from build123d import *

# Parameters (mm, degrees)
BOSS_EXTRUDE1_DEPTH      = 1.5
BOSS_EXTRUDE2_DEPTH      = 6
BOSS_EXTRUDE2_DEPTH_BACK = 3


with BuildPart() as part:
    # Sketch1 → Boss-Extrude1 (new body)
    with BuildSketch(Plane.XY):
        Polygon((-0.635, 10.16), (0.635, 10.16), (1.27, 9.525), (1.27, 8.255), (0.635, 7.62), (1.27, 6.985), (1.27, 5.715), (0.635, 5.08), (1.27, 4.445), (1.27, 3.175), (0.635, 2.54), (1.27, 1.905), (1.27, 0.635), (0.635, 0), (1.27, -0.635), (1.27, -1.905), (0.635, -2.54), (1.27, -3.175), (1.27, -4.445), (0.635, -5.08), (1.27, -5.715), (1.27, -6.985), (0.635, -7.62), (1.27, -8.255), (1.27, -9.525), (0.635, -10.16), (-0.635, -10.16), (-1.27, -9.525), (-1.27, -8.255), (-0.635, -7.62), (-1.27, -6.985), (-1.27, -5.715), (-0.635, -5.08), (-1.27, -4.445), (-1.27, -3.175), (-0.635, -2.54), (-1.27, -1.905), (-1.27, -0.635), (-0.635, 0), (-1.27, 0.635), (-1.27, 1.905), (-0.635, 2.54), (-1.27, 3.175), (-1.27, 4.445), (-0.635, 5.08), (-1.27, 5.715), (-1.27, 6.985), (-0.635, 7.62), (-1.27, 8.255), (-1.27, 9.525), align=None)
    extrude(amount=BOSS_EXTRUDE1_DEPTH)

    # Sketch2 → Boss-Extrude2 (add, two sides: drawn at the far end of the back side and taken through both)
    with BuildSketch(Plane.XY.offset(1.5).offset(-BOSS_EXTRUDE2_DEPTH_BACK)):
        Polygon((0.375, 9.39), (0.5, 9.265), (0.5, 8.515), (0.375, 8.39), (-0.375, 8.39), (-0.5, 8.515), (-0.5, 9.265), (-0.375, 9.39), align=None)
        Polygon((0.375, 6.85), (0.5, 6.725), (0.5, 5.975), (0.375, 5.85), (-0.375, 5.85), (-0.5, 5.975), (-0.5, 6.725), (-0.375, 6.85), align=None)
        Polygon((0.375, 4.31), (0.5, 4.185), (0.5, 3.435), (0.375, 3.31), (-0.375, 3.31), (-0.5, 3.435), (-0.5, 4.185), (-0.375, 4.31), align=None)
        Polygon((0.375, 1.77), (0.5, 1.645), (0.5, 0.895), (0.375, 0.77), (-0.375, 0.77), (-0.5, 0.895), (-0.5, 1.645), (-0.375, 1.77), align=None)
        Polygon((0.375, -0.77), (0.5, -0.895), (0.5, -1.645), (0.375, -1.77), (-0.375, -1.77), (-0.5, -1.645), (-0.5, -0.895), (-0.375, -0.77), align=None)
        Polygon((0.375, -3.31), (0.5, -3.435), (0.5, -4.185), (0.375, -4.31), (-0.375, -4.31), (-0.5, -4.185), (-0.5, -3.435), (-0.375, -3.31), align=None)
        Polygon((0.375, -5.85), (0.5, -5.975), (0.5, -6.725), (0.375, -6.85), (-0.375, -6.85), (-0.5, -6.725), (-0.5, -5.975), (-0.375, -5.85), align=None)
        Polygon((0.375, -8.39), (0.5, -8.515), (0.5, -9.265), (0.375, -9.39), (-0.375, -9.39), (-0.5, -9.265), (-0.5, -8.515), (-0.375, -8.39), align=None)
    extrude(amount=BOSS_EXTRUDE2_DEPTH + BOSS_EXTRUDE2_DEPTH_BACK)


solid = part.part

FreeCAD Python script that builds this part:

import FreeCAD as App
import Part
import Sketcher
from FreeCAD import Vector
Q = App.Units.Quantity

doc = App.newDocument("Part")
body = doc.addObject("PartDesign::Body", "Body")

sketch1 = body.newObject("Sketcher::SketchObject", "Sketch")
sketch1.AttachmentSupport = (doc.getObject("XY_Plane"), [""])
sketch1.MapMode = "FlatFace"
sketch1.addGeometry([
    Part.LineSegment(Vector(0.6, 10.2, 0), Vector(-0.6, 10.2, 0)),
    Part.LineSegment(Vector(-0.6, 10.2, 0), Vector(-1.3, 9.5, 0)),
    Part.LineSegment(Vector(-1.3, 9.5, 0), Vector(-1.3, 8.3, 0)),
    Part.LineSegment(Vector(-1.3, 8.3, 0), Vector(-0.6, 7.6, 0)),
    Part.LineSegment(Vector(-0.6, 7.6, 0), Vector(-1.3, 7, 0)),
    Part.LineSegment(Vector(-1.3, 7, 0), Vector(-1.3, 5.7, 0)),
    Part.LineSegment(Vector(-1.3, 5.7, 0), Vector(-0.6, 5.1, 0)),
    Part.LineSegment(Vector(-0.6, 5.1, 0), Vector(-1.3, 4.4, 0)),
    Part.LineSegment(Vector(-1.3, 4.4, 0), Vector(-1.3, 3.2, 0)),
    Part.LineSegment(Vector(-1.3, 3.2, 0), Vector(-0.6, 2.5, 0)),
    Part.LineSegment(Vector(-0.6, 2.5, 0), Vector(-1.3, 1.9, 0)),
    Part.LineSegment(Vector(-1.3, 1.9, 0), Vector(-1.3, 0.6, 0)),
    Part.LineSegment(Vector(-1.3, 0.6, 0), Vector(-0.6, 0, 0)),
    Part.LineSegment(Vector(-0.6, 0, 0), Vector(-1.3, -0.6, 0)),
    Part.LineSegment(Vector(-1.3, -0.6, 0), Vector(-1.3, -1.9, 0)),
    Part.LineSegment(Vector(-1.3, -1.9, 0), Vector(-0.6, -2.5, 0)),
    Part.LineSegment(Vector(-0.6, -2.5, 0), Vector(-1.3, -3.2, 0)),
    Part.LineSegment(Vector(-1.3, -3.2, 0), Vector(-1.3, -4.4, 0)),
    Part.LineSegment(Vector(-1.3, -4.4, 0), Vector(-0.6, -5.1, 0)),
    Part.LineSegment(Vector(-0.6, -5.1, 0), Vector(-1.3, -5.7, 0)),
    Part.LineSegment(Vector(-1.3, -5.7, 0), Vector(-1.3, -7, 0)),
    Part.LineSegment(Vector(-1.3, -7, 0), Vector(-0.6, -7.6, 0)),
    Part.LineSegment(Vector(-0.6, -7.6, 0), Vector(-1.3, -8.3, 0)),
    Part.LineSegment(Vector(-1.3, -8.3, 0), Vector(-1.3, -9.5, 0)),
    Part.LineSegment(Vector(-1.3, -9.5, 0), Vector(-0.6, -10.2, 0)),
    Part.LineSegment(Vector(-0.6, -10.2, 0), Vector(0.6, -10.2, 0)),
    Part.LineSegment(Vector(0.6, -10.2, 0), Vector(1.3, -9.5, 0)),
    Part.LineSegment(Vector(1.3, -9.5, 0), Vector(1.3, -8.3, 0)),
    Part.LineSegment(Vector(1.3, -8.3, 0), Vector(0.6, -7.6, 0)),
    Part.LineSegment(Vector(0.6, -7.6, 0), Vector(1.3, -7, 0)),
    Part.LineSegment(Vector(1.3, -7, 0), Vector(1.3, -5.7, 0)),
    Part.LineSegment(Vector(1.3, -5.7, 0), Vector(0.6, -5.1, 0)),
    Part.LineSegment(Vector(0.6, -5.1, 0), Vector(1.3, -4.4, 0)),
    Part.LineSegment(Vector(1.3, -4.4, 0), Vector(1.3, -3.2, 0)),
    Part.LineSegment(Vector(1.3, -3.2, 0), Vector(0.6, -2.5, 0)),
    Part.LineSegment(Vector(0.6, -2.5, 0), Vector(1.3, -1.9, 0)),
    Part.LineSegment(Vector(1.3, -1.9, 0), Vector(1.3, -0.6, 0)),
    Part.LineSegment(Vector(1.3, -0.6, 0), Vector(0.6, 0, 0)),
    Part.LineSegment(Vector(0.6, 0, 0), Vector(1.3, 0.6, 0)),
    Part.LineSegment(Vector(1.3, 0.6, 0), Vector(1.3, 1.9, 0)),
    Part.LineSegment(Vector(1.3, 1.9, 0), Vector(0.6, 2.5, 0)),
    Part.LineSegment(Vector(0.6, 2.5, 0), Vector(1.3, 3.2, 0)),
    Part.LineSegment(Vector(1.3, 3.2, 0), Vector(1.3, 4.4, 0)),
    Part.LineSegment(Vector(1.3, 4.4, 0), Vector(0.6, 5.1, 0)),
    Part.LineSegment(Vector(0.6, 5.1, 0), Vector(1.3, 5.7, 0)),
    Part.LineSegment(Vector(1.3, 5.7, 0), Vector(1.3, 7, 0)),
    Part.LineSegment(Vector(1.3, 7, 0), Vector(0.6, 7.6, 0)),
    Part.LineSegment(Vector(0.6, 7.6, 0), Vector(1.3, 8.3, 0)),
    Part.LineSegment(Vector(1.3, 8.3, 0), Vector(1.3, 9.5, 0)),
    Part.LineSegment(Vector(1.3, 9.5, 0), Vector(0.6, 10.2, 0)),
], False)
sketch1.addConstraint([
    Sketcher.Constraint("Coincident", 0, 2, 1, 1),
    Sketcher.Constraint("Coincident", 1, 2, 2, 1),
    Sketcher.Constraint("Coincident", 2, 2, 3, 1),
    Sketcher.Constraint("Coincident", 3, 2, 4, 1),
    Sketcher.Constraint("Coincident", 4, 2, 5, 1),
    Sketcher.Constraint("Coincident", 5, 2, 6, 1),
    Sketcher.Constraint("Coincident", 6, 2, 7, 1),
    Sketcher.Constraint("Coincident", 7, 2, 8, 1),
    Sketcher.Constraint("Coincident", 8, 2, 9, 1),
    Sketcher.Constraint("Coincident", 9, 2, 10, 1),
    Sketcher.Constraint("Coincident", 10, 2, 11, 1),
    Sketcher.Constraint("Coincident", 11, 2, 12, 1),
    Sketcher.Constraint("Coincident", 12, 2, 13, 1),
    Sketcher.Constraint("Coincident", 13, 2, 14, 1),
    Sketcher.Constraint("Coincident", 14, 2, 15, 1),
    Sketcher.Constraint("Coincident", 15, 2, 16, 1),
    Sketcher.Constraint("Coincident", 16, 2, 17, 1),
    Sketcher.Constraint("Coincident", 17, 2, 18, 1),
    Sketcher.Constraint("Coincident", 18, 2, 19, 1),
    Sketcher.Constraint("Coincident", 19, 2, 20, 1),
    Sketcher.Constraint("Coincident", 20, 2, 21, 1),
    Sketcher.Constraint("Coincident", 21, 2, 22, 1),
    Sketcher.Constraint("Coincident", 22, 2, 23, 1),
    Sketcher.Constraint("Coincident", 23, 2, 24, 1),
    Sketcher.Constraint("Coincident", 24, 2, 25, 1),
    Sketcher.Constraint("Coincident", 25, 2, 26, 1),
    Sketcher.Constraint("Coincident", 26, 2, 27, 1),
    Sketcher.Constraint("Coincident", 27, 2, 28, 1),
    Sketcher.Constraint("Coincident", 28, 2, 29, 1),
    Sketcher.Constraint("Coincident", 29, 2, 30, 1),
    Sketcher.Constraint("Coincident", 30, 2, 31, 1),
    Sketcher.Constraint("Coincident", 31, 2, 32, 1),
    Sketcher.Constraint("Coincident", 32, 2, 33, 1),
    Sketcher.Constraint("Coincident", 33, 2, 34, 1),
    Sketcher.Constraint("Coincident", 34, 2, 35, 1),
    Sketcher.Constraint("Coincident", 35, 2, 36, 1),
    Sketcher.Constraint("Coincident", 36, 2, 37, 1),
    Sketcher.Constraint("Coincident", 37, 2, 38, 1),
    Sketcher.Constraint("Coincident", 38, 2, 39, 1),
    Sketcher.Constraint("Coincident", 39, 2, 40, 1),
    Sketcher.Constraint("Coincident", 40, 2, 41, 1),
    Sketcher.Constraint("Coincident", 41, 2, 42, 1),
    Sketcher.Constraint("Coincident", 42, 2, 43, 1),
    Sketcher.Constraint("Coincident", 43, 2, 44, 1),
    Sketcher.Constraint("Coincident", 44, 2, 45, 1),
    Sketcher.Constraint("Coincident", 45, 2, 46, 1),
    Sketcher.Constraint("Coincident", 46, 2, 47, 1),
    Sketcher.Constraint("Coincident", 47, 2, 48, 1),
    Sketcher.Constraint("Coincident", 48, 2, 49, 1),
    Sketcher.Constraint("Coincident", 49, 2, 0, 1),
    Sketcher.Constraint("Horizontal", 0),
    Sketcher.Constraint("Vertical", 2),
    Sketcher.Constraint("Vertical", 5),
    Sketcher.Constraint("Vertical", 8),
    Sketcher.Constraint("Vertical", 11),
    Sketcher.Constraint("Vertical", 14),
    Sketcher.Constraint("Vertical", 17),
    Sketcher.Constraint("Vertical", 20),
    Sketcher.Constraint("Vertical", 23),
    Sketcher.Constraint("Horizontal", 25),
    Sketcher.Constraint("Vertical", 27),
    Sketcher.Constraint("Vertical", 30),
    Sketcher.Constraint("Vertical", 33),
    Sketcher.Constraint("Vertical", 36),
    Sketcher.Constraint("Vertical", 39),
    Sketcher.Constraint("Vertical", 42),
    Sketcher.Constraint("Vertical", 45),
    Sketcher.Constraint("Vertical", 48),
    Sketcher.Constraint("Symmetric", 0, 2, 25, 2, -1, 1),
    Sketcher.Constraint("Symmetric", 1, 2, 26, 2, -1, 1),
    Sketcher.Constraint("Symmetric", 3, 2, 28, 2, -1, 1),
    Sketcher.Constraint("Symmetric", 4, 2, 29, 2, -1, 1),
    Sketcher.Constraint("Symmetric", 6, 2, 31, 2, -1, 1),
    Sketcher.Constraint("Symmetric", 7, 2, 32, 2, -1, 1),
    Sketcher.Constraint("Symmetric", 9, 2, 34, 2, -1, 1),
    Sketcher.Constraint("Symmetric", 10, 2, 35, 2, -1, 1),
    Sketcher.Constraint("Symmetric", 12, 2, 37, 2, -1, 1),
    Sketcher.Constraint("Symmetric", 13, 2, 38, 2, -1, 1),
    Sketcher.Constraint("Symmetric", 15, 2, 40, 2, -1, 1),
    Sketcher.Constraint("Symmetric", 16, 2, 41, 2, -1, 1),
    Sketcher.Constraint("Symmetric", 18, 2, 43, 2, -1, 1),
    Sketcher.Constraint("Symmetric", 19, 2, 44, 2, -1, 1),
    Sketcher.Constraint("Symmetric", 21, 2, 46, 2, -1, 1),
    Sketcher.Constraint("Symmetric", 22, 2, 47, 2, -1, 1),
    Sketcher.Constraint("Symmetric", 23, 2, 26, 2, -2),
    Sketcher.Constraint("Symmetric", 21, 2, 28, 2, -2),
    Sketcher.Constraint("Symmetric", 20, 2, 29, 2, -2),
    Sketcher.Constraint("Symmetric", 18, 2, 31, 2, -2),
    Sketcher.Constraint("Symmetric", 17, 2, 32, 2, -2),
    Sketcher.Constraint("Symmetric", 15, 2, 34, 2, -2),
    Sketcher.Constraint("Symmetric", 14, 2, 35, 2, -2),
    Sketcher.Constraint("PointOnObject", 12, 2, -1),
    Sketcher.Constraint("Perpendicular", 1, 3),
    Sketcher.Constraint("Perpendicular", 3, 4),
    Sketcher.Constraint("Perpendicular", 4, 6),
    Sketcher.Constraint("Perpendicular", 6, 7),
    Sketcher.Constraint("Perpendicular", 7, 9),
    Sketcher.Constraint("Perpendicular", 9, 10),
    Sketcher.Constraint("Perpendicular", 10, 12),
    Sketcher.Constraint("Perpendicular", 12, 13),
    Sketcher.Constraint("Perpendicular", 13, 15),
    Sketcher.Constraint("Perpendicular", 15, 16),
    Sketcher.Constraint("Perpendicular", 18, 19),
    Sketcher.Constraint("Perpendicular", 21, 22),
    Sketcher.Constraint("Perpendicular", 22, 24),
    Sketcher.Constraint("Perpendicular", 26, 28),
    Sketcher.Constraint("Perpendicular", 29, 31),
    Sketcher.Constraint("Perpendicular", 32, 34),
    Sketcher.Constraint("Perpendicular", 35, 37),
    Sketcher.Constraint("Perpendicular", 38, 40),
    Sketcher.Constraint("Perpendicular", 41, 43),
    Sketcher.Constraint("Perpendicular", 44, 46),
    Sketcher.Constraint("Perpendicular", 47, 49),
    Sketcher.Constraint("Horizontal", 1, 2, 48, 2),
    Sketcher.Constraint("Vertical", 0, 2, 3, 2),
    Sketcher.Constraint("Vertical", 2, 2, 4, 2),
    Sketcher.Constraint("Vertical", 3, 2, 6, 2),
    Sketcher.Constraint("Vertical", 5, 2, 7, 2),
    Sketcher.Constraint("Vertical", 6, 2, 9, 2),
    Sketcher.Constraint("Vertical", 8, 2, 10, 2),
    Sketcher.Constraint("Vertical", 9, 2, 12, 2),
    Sketcher.Constraint("Equal", 25, 2),
    Sketcher.Constraint("Equal", 2, 5),
    Sketcher.Constraint("Equal", 5, 8),
    Sketcher.Constraint("Equal", 8, 11),
    Sketcher.Constraint("DistanceX", 0, 2, 0, 1, Q("1.27 mm")),
    Sketcher.Constraint("DistanceY", -1, 1, 0, 2, Q("10.16 mm")),
])
pad1 = body.newObject("PartDesign::Pad", "Pad")
pad1.Profile = sketch1
pad1.Length = 1.5

sketch2 = body.newObject("Sketcher::SketchObject", "Sketch001")
sketch2.AttachmentSupport = (doc.getObject("XY_Plane"), [""])
sketch2.MapMode = "FlatFace"
sketch2.AttachmentOffset = App.Placement(Vector(0, 0, 1.5), App.Rotation())
sketch2.addGeometry([
    Part.LineSegment(Vector(0.5, 9.27, 0), Vector(0.38, 9.39, 0)),
    Part.LineSegment(Vector(0.38, 9.39, 0), Vector(-0.38, 9.39, 0)),
    Part.LineSegment(Vector(-0.38, 9.39, 0), Vector(-0.5, 9.27, 0)),
    Part.LineSegment(Vector(-0.5, 9.27, 0), Vector(-0.5, 8.52, 0)),
    Part.LineSegment(Vector(-0.5, 8.52, 0), Vector(-0.38, 8.39, 0)),
    Part.LineSegment(Vector(-0.38, 8.39, 0), Vector(0.38, 8.39, 0)),
    Part.LineSegment(Vector(0.38, 8.39, 0), Vector(0.5, 8.52, 0)),
    Part.LineSegment(Vector(0.5, 8.52, 0), Vector(0.5, 9.27, 0)),
    Part.LineSegment(Vector(0.5, 6.72, 0), Vector(0.38, 6.85, 0)),
    Part.LineSegment(Vector(0.38, 6.85, 0), Vector(-0.38, 6.85, 0)),
    Part.LineSegment(Vector(-0.38, 6.85, 0), Vector(-0.5, 6.72, 0)),
    Part.LineSegment(Vector(-0.5, 6.72, 0), Vector(-0.5, 5.97, 0)),
    Part.LineSegment(Vector(-0.5, 5.97, 0), Vector(-0.38, 5.85, 0)),
    Part.LineSegment(Vector(-0.38, 5.85, 0), Vector(0.38, 5.85, 0)),
    Part.LineSegment(Vector(0.38, 5.85, 0), Vector(0.5, 5.97, 0)),
    Part.LineSegment(Vector(0.5, 5.97, 0), Vector(0.5, 6.72, 0)),
    Part.LineSegment(Vector(0.5, 4.18, 0), Vector(0.38, 4.31, 0)),
    Part.LineSegment(Vector(0.38, 4.31, 0), Vector(-0.38, 4.31, 0)),
    Part.LineSegment(Vector(-0.38, 4.31, 0), Vector(-0.5, 4.18, 0)),
    Part.LineSegment(Vector(-0.5, 4.18, 0), Vector(-0.5, 3.44, 0)),
    Part.LineSegment(Vector(-0.5, 3.44, 0), Vector(-0.38, 3.31, 0)),
    Part.LineSegment(Vector(-0.38, 3.31, 0), Vector(0.38, 3.31, 0)),
    Part.LineSegment(Vector(0.38, 3.31, 0), Vector(0.5, 3.44, 0)),
    Part.LineSegment(Vector(0.5, 3.44, 0), Vector(0.5, 4.18, 0)),
    Part.LineSegment(Vector(0.5, 1.65, 0), Vector(0.38, 1.77, 0)),
    Part.LineSegment(Vector(0.38, 1.77, 0), Vector(-0.38, 1.77, 0)),
    Part.LineSegment(Vector(-0.38, 1.77, 0), Vector(-0.5, 1.65, 0)),
    Part.LineSegment(Vector(-0.5, 1.65, 0), Vector(-0.5, 0.9, 0)),
    Part.LineSegment(Vector(-0.5, 0.9, 0), Vector(-0.38, 0.77, 0)),
    Part.LineSegment(Vector(-0.38, 0.77, 0), Vector(0.38, 0.77, 0)),
    Part.LineSegment(Vector(0.38, 0.77, 0), Vector(0.5, 0.9, 0)),
    Part.LineSegment(Vector(0.5, 0.9, 0), Vector(0.5, 1.65, 0)),
    Part.LineSegment(Vector(0.5, -0.9, 0), Vector(0.38, -0.77, 0)),
    Part.LineSegment(Vector(0.38, -0.77, 0), Vector(-0.38, -0.77, 0)),
    Part.LineSegment(Vector(-0.38, -0.77, 0), Vector(-0.5, -0.9, 0)),
    Part.LineSegment(Vector(-0.5, -0.9, 0), Vector(-0.5, -1.65, 0)),
    Part.LineSegment(Vector(-0.5, -1.65, 0), Vector(-0.38, -1.77, 0)),
    Part.LineSegment(Vector(-0.38, -1.77, 0), Vector(0.38, -1.77, 0)),
    Part.LineSegment(Vector(0.38, -1.77, 0), Vector(0.5, -1.65, 0)),
    Part.LineSegment(Vector(0.5, -1.65, 0), Vector(0.5, -0.9, 0)),
    Part.LineSegment(Vector(0.5, -3.44, 0), Vector(0.38, -3.31, 0)),
    Part.LineSegment(Vector(0.38, -3.31, 0), Vector(-0.38, -3.31, 0)),
    Part.LineSegment(Vector(-0.38, -3.31, 0), Vector(-0.5, -3.44, 0)),
    Part.LineSegment(Vector(-0.5, -3.44, 0), Vector(-0.5, -4.18, 0)),
    Part.LineSegment(Vector(-0.5, -4.18, 0), Vector(-0.38, -4.31, 0)),
    Part.LineSegment(Vector(-0.38, -4.31, 0), Vector(0.38, -4.31, 0)),
    Part.LineSegment(Vector(0.38, -4.31, 0), Vector(0.5, -4.18, 0)),
    Part.LineSegment(Vector(0.5, -4.18, 0), Vector(0.5, -3.44, 0)),
    Part.LineSegment(Vector(0.5, -5.97, 0), Vector(0.38, -5.85, 0)),
    Part.LineSegment(Vector(0.38, -5.85, 0), Vector(-0.38, -5.85, 0)),
    Part.LineSegment(Vector(-0.38, -5.85, 0), Vector(-0.5, -5.97, 0)),
    Part.LineSegment(Vector(-0.5, -5.97, 0), Vector(-0.5, -6.72, 0)),
    Part.LineSegment(Vector(-0.5, -6.72, 0), Vector(-0.38, -6.85, 0)),
    Part.LineSegment(Vector(-0.38, -6.85, 0), Vector(0.38, -6.85, 0)),
    Part.LineSegment(Vector(0.38, -6.85, 0), Vector(0.5, -6.72, 0)),
    Part.LineSegment(Vector(0.5, -6.72, 0), Vector(0.5, -5.97, 0)),
    Part.LineSegment(Vector(0.5, -8.52, 0), Vector(0.38, -8.39, 0)),
    Part.LineSegment(Vector(0.38, -8.39, 0), Vector(-0.38, -8.39, 0)),
    Part.LineSegment(Vector(-0.38, -8.39, 0), Vector(-0.5, -8.52, 0)),
    Part.LineSegment(Vector(-0.5, -8.52, 0), Vector(-0.5, -9.27, 0)),
    Part.LineSegment(Vector(-0.5, -9.27, 0), Vector(-0.38, -9.39, 0)),
    Part.LineSegment(Vector(-0.38, -9.39, 0), Vector(0.38, -9.39, 0)),
    Part.LineSegment(Vector(0.38, -9.39, 0), Vector(0.5, -9.27, 0)),
    Part.LineSegment(Vector(0.5, -9.27, 0), Vector(0.5, -8.52, 0)),
], False)
sketch2.addConstraint([
    Sketcher.Constraint("Coincident", 0, 2, 1, 1),
    Sketcher.Constraint("Coincident", 1, 2, 2, 1),
    Sketcher.Constraint("Coincident", 2, 2, 3, 1),
    Sketcher.Constraint("Coincident", 3, 2, 4, 1),
    Sketcher.Constraint("Coincident", 4, 2, 5, 1),
    Sketcher.Constraint("Coincident", 5, 2, 6, 1),
    Sketcher.Constraint("Coincident", 6, 2, 7, 1),
    Sketcher.Constraint("Coincident", 7, 2, 0, 1),
    Sketcher.Constraint("Coincident", 8, 2, 9, 1),
    Sketcher.Constraint("Coincident", 9, 2, 10, 1),
    Sketcher.Constraint("Coincident", 10, 2, 11, 1),
    Sketcher.Constraint("Coincident", 11, 2, 12, 1),
    Sketcher.Constraint("Coincident", 12, 2, 13, 1),
    Sketcher.Constraint("Coincident", 13, 2, 14, 1),
    Sketcher.Constraint("Coincident", 14, 2, 15, 1),
    Sketcher.Constraint("Coincident", 15, 2, 8, 1),
    Sketcher.Constraint("Coincident", 16, 2, 17, 1),
    Sketcher.Constraint("Coincident", 17, 2, 18, 1),
    Sketcher.Constraint("Coincident", 18, 2, 19, 1),
    Sketcher.Constraint("Coincident", 19, 2, 20, 1),
    Sketcher.Constraint("Coincident", 20, 2, 21, 1),
    Sketcher.Constraint("Coincident", 21, 2, 22, 1),
    Sketcher.Constraint("Coincident", 22, 2, 23, 1),
    Sketcher.Constraint("Coincident", 23, 2, 16, 1),
    Sketcher.Constraint("Coincident", 24, 2, 25, 1),
    Sketcher.Constraint("Coincident", 25, 2, 26, 1),
    Sketcher.Constraint("Coincident", 26, 2, 27, 1),
    Sketcher.Constraint("Coincident", 27, 2, 28, 1),
    Sketcher.Constraint("Coincident", 28, 2, 29, 1),
    Sketcher.Constraint("Coincident", 29, 2, 30, 1),
    Sketcher.Constraint("Coincident", 30, 2, 31, 1),
    Sketcher.Constraint("Coincident", 31, 2, 24, 1),
    Sketcher.Constraint("Coincident", 32, 2, 33, 1),
    Sketcher.Constraint("Coincident", 33, 2, 34, 1),
    Sketcher.Constraint("Coincident", 34, 2, 35, 1),
    Sketcher.Constraint("Coincident", 35, 2, 36, 1),
    Sketcher.Constraint("Coincident", 36, 2, 37, 1),
    Sketcher.Constraint("Coincident", 37, 2, 38, 1),
    Sketcher.Constraint("Coincident", 38, 2, 39, 1),
    Sketcher.Constraint("Coincident", 39, 2, 32, 1),
    Sketcher.Constraint("Coincident", 40, 2, 41, 1),
    Sketcher.Constraint("Coincident", 41, 2, 42, 1),
    Sketcher.Constraint("Coincident", 42, 2, 43, 1),
    Sketcher.Constraint("Coincident", 43, 2, 44, 1),
    Sketcher.Constraint("Coincident", 44, 2, 45, 1),
    Sketcher.Constraint("Coincident", 45, 2, 46, 1),
    Sketcher.Constraint("Coincident", 46, 2, 47, 1),
    Sketcher.Constraint("Coincident", 47, 2, 40, 1),
    Sketcher.Constraint("Coincident", 48, 2, 49, 1),
    Sketcher.Constraint("Coincident", 49, 2, 50, 1),
    Sketcher.Constraint("Coincident", 50, 2, 51, 1),
    Sketcher.Constraint("Coincident", 51, 2, 52, 1),
    Sketcher.Constraint("Coincident", 52, 2, 53, 1),
    Sketcher.Constraint("Coincident", 53, 2, 54, 1),
    Sketcher.Constraint("Coincident", 54, 2, 55, 1),
    Sketcher.Constraint("Coincident", 55, 2, 48, 1),
    Sketcher.Constraint("Coincident", 56, 2, 57, 1),
    Sketcher.Constraint("Coincident", 57, 2, 58, 1),
    Sketcher.Constraint("Coincident", 58, 2, 59, 1),
    Sketcher.Constraint("Coincident", 59, 2, 60, 1),
    Sketcher.Constraint("Coincident", 60, 2, 61, 1),
    Sketcher.Constraint("Coincident", 61, 2, 62, 1),
    Sketcher.Constraint("Coincident", 62, 2, 63, 1),
    Sketcher.Constraint("Coincident", 63, 2, 56, 1),
    Sketcher.Constraint("Horizontal", 1),
    Sketcher.Constraint("Vertical", 3),
    Sketcher.Constraint("Horizontal", 5),
    Sketcher.Constraint("Vertical", 7),
    Sketcher.Constraint("Horizontal", 9),
    Sketcher.Constraint("Vertical", 11),
    Sketcher.Constraint("Horizontal", 13),
    Sketcher.Constraint("Vertical", 15),
    Sketcher.Constraint("Horizontal", 17),
    Sketcher.Constraint("Vertical", 19),
    Sketcher.Constraint("Horizontal", 21),
    Sketcher.Constraint("Vertical", 23),
    Sketcher.Constraint("Horizontal", 25),
    Sketcher.Constraint("Vertical", 27),
    Sketcher.Constraint("Horizontal", 29),
    Sketcher.Constraint("Vertical", 31),
    Sketcher.Constraint("Horizontal", 33),
    Sketcher.Constraint("Vertical", 35),
    Sketcher.Constraint("Horizontal", 37),
    Sketcher.Constraint("Vertical", 39),
    Sketcher.Constraint("Horizontal", 41),
    Sketcher.Constraint("Vertical", 43),
    Sketcher.Constraint("Horizontal", 45),
    Sketcher.Constraint("Vertical", 47),
    Sketcher.Constraint("Horizontal", 49),
    Sketcher.Constraint("Vertical", 51),
    Sketcher.Constraint("Horizontal", 53),
    Sketcher.Constraint("Vertical", 55),
    Sketcher.Constraint("Horizontal", 57),
    Sketcher.Constraint("Vertical", 59),
    Sketcher.Constraint("Horizontal", 61),
    Sketcher.Constraint("Vertical", 63),
    Sketcher.Constraint("Symmetric", 28, 2, 32, 2, -1, 1),
    Sketcher.Constraint("Symmetric", 30, 2, 34, 2, -1, 1),
    Sketcher.Constraint("Symmetric", 24, 2, 36, 2, -1, 1),
    Sketcher.Constraint("Symmetric", 26, 2, 38, 2, -1, 1),
    Sketcher.Constraint("Symmetric", 20, 2, 40, 2, -1, 1),
    Sketcher.Constraint("Symmetric", 22, 2, 42, 2, -1, 1),
    Sketcher.Constraint("Symmetric", 16, 2, 44, 2, -1, 1),
    Sketcher.Constraint("Symmetric", 18, 2, 46, 2, -1, 1),
    Sketcher.Constraint("Symmetric", 12, 2, 48, 2, -1, 1),
    Sketcher.Constraint("Symmetric", 14, 2, 50, 2, -1, 1),
    Sketcher.Constraint("Symmetric", 8, 2, 52, 2, -1, 1),
    Sketcher.Constraint("Symmetric", 10, 2, 54, 2, -1, 1),
    Sketcher.Constraint("Symmetric", 4, 2, 56, 2, -1, 1),
    Sketcher.Constraint("Symmetric", 6, 2, 58, 2, -1, 1),
    Sketcher.Constraint("Symmetric", 0, 2, 60, 2, -1, 1),
    Sketcher.Constraint("Symmetric", 2, 2, 62, 2, -1, 1),
    Sketcher.Constraint("Symmetric", 3, 2, 6, 2, -2),
    Sketcher.Constraint("Symmetric", 11, 2, 14, 2, -2),
    Sketcher.Constraint("Symmetric", 19, 2, 22, 2, -2),
    Sketcher.Constraint("Symmetric", 27, 2, 30, 2, -2),
    Sketcher.Constraint("Perpendicular", 0, 2),
    Sketcher.Constraint("Perpendicular", 2, 4),
    Sketcher.Constraint("Perpendicular", 4, 6),
    Sketcher.Constraint("Perpendicular", 6, 8),
    Sketcher.Constraint("Perpendicular", 8, 10),
    Sketcher.Constraint("Perpendicular", 10, 12),
    Sketcher.Constraint("Perpendicular", 12, 14),
    Sketcher.Constraint("Perpendicular", 14, 16),
    Sketcher.Constraint("Perpendicular", 16, 18),
    Sketcher.Constraint("Perpendicular", 18, 20),
    Sketcher.Constraint("Perpendicular", 20, 22),
    Sketcher.Constraint("Perpendicular", 22, 24),
    Sketcher.Constraint("Perpendicular", 24, 26),
    Sketcher.Constraint("Perpendicular", 26, 28),
    Sketcher.Constraint("Perpendicular", 28, 30),
    Sketcher.Constraint("Perpendicular", 30, 32),
    Sketcher.Constraint("Perpendicular", 32, 34),
    Sketcher.Constraint("Perpendicular", 34, 36),
    Sketcher.Constraint("Perpendicular", 36, 38),
    Sketcher.Constraint("Perpendicular", 38, 40),
    Sketcher.Constraint("Perpendicular", 40, 42),
    Sketcher.Constraint("Perpendicular", 42, 44),
    Sketcher.Constraint("Perpendicular", 44, 46),
    Sketcher.Constraint("Perpendicular", 46, 48),
    Sketcher.Constraint("Perpendicular", 48, 50),
    Sketcher.Constraint("Perpendicular", 50, 52),
    Sketcher.Constraint("Perpendicular", 52, 54),
    Sketcher.Constraint("Perpendicular", 54, 56),
    Sketcher.Constraint("Perpendicular", 56, 58),
    Sketcher.Constraint("Perpendicular", 58, 60),
    Sketcher.Constraint("Perpendicular", 60, 62),
    Sketcher.Constraint("Horizontal", 2, 2, 7, 2),
    Sketcher.Constraint("Horizontal", 10, 2, 15, 2),
    Sketcher.Constraint("Horizontal", 18, 2, 23, 2),
    Sketcher.Constraint("Horizontal", 26, 2, 31, 2),
    Sketcher.Constraint("Vertical", 1, 2, 4, 2),
    Sketcher.Constraint("Vertical", 0, 2, 5, 2),
    Sketcher.Constraint("Vertical", 5, 2, 8, 2),
    Sketcher.Constraint("Vertical", 3, 2, 10, 2),
    Sketcher.Constraint("Vertical", 9, 2, 12, 2),
    Sketcher.Constraint("Vertical", 13, 2, 16, 2),
    Sketcher.Constraint("Vertical", 11, 2, 18, 2),
    Sketcher.Constraint("Vertical", 17, 2, 20, 2),
    Sketcher.Constraint("Vertical", 21, 2, 24, 2),
    Sketcher.Constraint("Vertical", 19, 2, 26, 2),
    Sketcher.Constraint("Vertical", 25, 2, 28, 2),
    Sketcher.Constraint("Equal", 61, 3),
    Sketcher.Constraint("Equal", 7, 11),
    Sketcher.Constraint("Equal", 15, 19),
    Sketcher.Constraint("Equal", 23, 27),
    Sketcher.Constraint("DistanceX", 1, 2, 1, 1, Q("0.75 mm")),
    Sketcher.Constraint("DistanceX", 2, 2, -1, 1, Q("0.5 mm")),
    Sketcher.Constraint("DistanceY", -1, 1, 0, 2, Q("9.39 mm")),
    Sketcher.Constraint("DistanceY", -1, 1, 8, 2, Q("6.85 mm")),
    Sketcher.Constraint("DistanceY", -1, 1, 16, 2, Q("4.31 mm")),
    Sketcher.Constraint("DistanceY", -1, 1, 24, 2, Q("1.77 mm")),
])
pad2 = body.newObject("PartDesign::Pad", "Pad001")
pad2.Profile = sketch2
pad2.Type = "TwoLengths"
pad2.Length = 6
pad2.Length2 = 3

doc.recompute()
